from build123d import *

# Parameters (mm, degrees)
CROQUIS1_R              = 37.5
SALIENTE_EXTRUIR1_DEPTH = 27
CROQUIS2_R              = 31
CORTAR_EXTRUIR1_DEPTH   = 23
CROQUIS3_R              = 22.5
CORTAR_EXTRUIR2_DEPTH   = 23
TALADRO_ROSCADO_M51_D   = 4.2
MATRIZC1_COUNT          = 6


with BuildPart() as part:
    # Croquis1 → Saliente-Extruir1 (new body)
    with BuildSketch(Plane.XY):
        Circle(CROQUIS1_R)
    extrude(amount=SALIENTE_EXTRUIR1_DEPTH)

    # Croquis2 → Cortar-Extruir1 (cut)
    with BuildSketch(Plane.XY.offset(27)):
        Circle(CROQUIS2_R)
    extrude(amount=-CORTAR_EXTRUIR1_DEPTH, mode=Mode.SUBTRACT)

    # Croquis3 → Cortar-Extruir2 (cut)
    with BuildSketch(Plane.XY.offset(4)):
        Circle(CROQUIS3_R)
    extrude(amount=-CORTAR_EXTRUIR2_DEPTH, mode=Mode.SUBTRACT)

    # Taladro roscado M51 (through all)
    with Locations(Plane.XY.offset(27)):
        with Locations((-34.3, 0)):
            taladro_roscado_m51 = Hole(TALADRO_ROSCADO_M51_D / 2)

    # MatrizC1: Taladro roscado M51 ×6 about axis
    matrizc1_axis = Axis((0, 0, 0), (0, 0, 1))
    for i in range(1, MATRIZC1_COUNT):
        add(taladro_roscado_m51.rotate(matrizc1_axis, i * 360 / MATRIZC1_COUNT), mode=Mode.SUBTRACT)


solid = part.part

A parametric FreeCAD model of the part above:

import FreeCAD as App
import Part
import Sketcher
Q = App.Units.Quantity

doc = App.newDocument("Part")
params = doc.addObject("Spreadsheet::Sheet", "Params")
for row, (alias, value) in enumerate([
    ("sketch1_diameter", "75 mm"),
    ("pad1_length", "27 mm"),
    ("sketch2_diameter", "62 mm"),
    ("pocket1_length", "23 mm"),
    ("sketch3_diameter", "45 mm"),
    ("pocket2_length", "23 mm"),
    ("sketch4_diameter", "4.2 mm"),
    ("hole_diameter", "4.2 mm"),
], start=1):
    params.set(f"A{row}", alias)
    params.set(f"B{row}", "=" + value)
    params.setAlias(f"B{row}", alias)

body = doc.addObject("PartDesign::Body", "Body")

sketch1 = body.newObject("Sketcher::SketchObject", "Sketch")
sketch1.AttachmentSupport = (doc.getObject("XY_Plane"), [""])
sketch1.MapMode = "FlatFace"
sketch1.addGeometry(Part.Circle(App.Vector(0, 0, 0), App.Vector(0, 0, 1), 38), False)
sketch1.addConstraint([
    Sketcher.Constraint("Coincident", 0, 3, -1, 1),
    Sketcher.Constraint("Diameter", 0, Q("75 mm")),
])
sketch1.setExpression("Constraints[1]", "Params.sketch1_diameter")
pad1 = body.newObject("PartDesign::Pad", "Pad")
pad1.Profile = sketch1
pad1.setExpression("Length", "Params.pad1_length")

sketch2 = body.newObject("Sketcher::SketchObject", "Sketch001")
sketch2.AttachmentSupport = (doc.getObject("XY_Plane"), [""])
sketch2.MapMode = "FlatFace"
sketch2.AttachmentOffset = App.Placement(App.Vector(0, 0, 27), App.Rotation())
sketch2.addGeometry(Part.Circle(App.Vector(0, 0, 0), App.Vector(0, 0, 1), 31), False)
sketch2.addConstraint([
    Sketcher.Constraint("Coincident", 0, 3, -1, 1),
    Sketcher.Constraint("Diameter", 0, Q("62 mm")),
])
sketch2.setExpression("Constraints[1]", "Params.sketch2_diameter")
pocket1 = body.newObject("PartDesign::Pocket", "Pocket")
pocket1.Profile = sketch2
pocket1.setExpression("Length", "Params.pocket1_length")

sketch3 = body.newObject("Sketcher::SketchObject", "Sketch002")
sketch3.AttachmentSupport = (doc.getObject("XY_Plane"), [""])
sketch3.MapMode = "FlatFace"
sketch3.AttachmentOffset = App.Placement(App.Vector(0, 0, 4), App.Rotation())
sketch3.addGeometry(Part.Circle(App.Vector(0, 0, 0), App.Vector(0, 0, 1), 22), False)
sketch3.addConstraint([
    Sketcher.Constraint("Coincident", 0, 3, -1, 1),
    Sketcher.Constraint("Diameter", 0, Q("45 mm")),
])
sketch3.setExpression("Constraints[1]", "Params.sketch3_diameter")
pocket2 = body.newObject("PartDesign::Pocket", "Pocket001")
pocket2.Profile = sketch3
pocket2.setExpression("Length", "Params.pocket2_length")

sketch4 = body.newObject("Sketcher::SketchObject", "Sketch003")
sketch4.AttachmentSupport = (doc.getObject("XY_Plane"), [""])
sketch4.MapMode = "FlatFace"
sketch4.AttachmentOffset = App.Placement(App.Vector(0, 0, 27), App.Rotation())
sketch4.addGeometry(Part.Circle(App.Vector(-34.3, 0, 0), App.Vector(0, 0, 1), 2.1), False)
sketch4.addConstraint([
    Sketcher.Constraint("PointOnObject", 0, 3, -1),
    Sketcher.Constraint("Diameter", 0, Q("4.2 mm")),
    Sketcher.Constraint("DistanceX", 0, 3, -1, 1, Q("34.3 mm")),
])
sketch4.setExpression("Constraints[1]", "Params.sketch4_diameter")
doc.recompute()
hole = body.newObject("PartDesign::Hole", "Hole")
hole.Profile = sketch4
hole.ThreadType = "None"
hole.setExpression("Diameter", "Params.hole_diameter")
hole.DepthType = "ThroughAll"
doc.recompute()

polarpattern = body.newObject("PartDesign::PolarPattern", "PolarPattern")
polarpattern.Originals = [hole]
polarpattern.Axis = (doc.getObject("Z_Axis"), [""])
polarpattern.Angle = 360
polarpattern.Occurrences = 6
body.Tip = polarpattern

doc.recompute()
